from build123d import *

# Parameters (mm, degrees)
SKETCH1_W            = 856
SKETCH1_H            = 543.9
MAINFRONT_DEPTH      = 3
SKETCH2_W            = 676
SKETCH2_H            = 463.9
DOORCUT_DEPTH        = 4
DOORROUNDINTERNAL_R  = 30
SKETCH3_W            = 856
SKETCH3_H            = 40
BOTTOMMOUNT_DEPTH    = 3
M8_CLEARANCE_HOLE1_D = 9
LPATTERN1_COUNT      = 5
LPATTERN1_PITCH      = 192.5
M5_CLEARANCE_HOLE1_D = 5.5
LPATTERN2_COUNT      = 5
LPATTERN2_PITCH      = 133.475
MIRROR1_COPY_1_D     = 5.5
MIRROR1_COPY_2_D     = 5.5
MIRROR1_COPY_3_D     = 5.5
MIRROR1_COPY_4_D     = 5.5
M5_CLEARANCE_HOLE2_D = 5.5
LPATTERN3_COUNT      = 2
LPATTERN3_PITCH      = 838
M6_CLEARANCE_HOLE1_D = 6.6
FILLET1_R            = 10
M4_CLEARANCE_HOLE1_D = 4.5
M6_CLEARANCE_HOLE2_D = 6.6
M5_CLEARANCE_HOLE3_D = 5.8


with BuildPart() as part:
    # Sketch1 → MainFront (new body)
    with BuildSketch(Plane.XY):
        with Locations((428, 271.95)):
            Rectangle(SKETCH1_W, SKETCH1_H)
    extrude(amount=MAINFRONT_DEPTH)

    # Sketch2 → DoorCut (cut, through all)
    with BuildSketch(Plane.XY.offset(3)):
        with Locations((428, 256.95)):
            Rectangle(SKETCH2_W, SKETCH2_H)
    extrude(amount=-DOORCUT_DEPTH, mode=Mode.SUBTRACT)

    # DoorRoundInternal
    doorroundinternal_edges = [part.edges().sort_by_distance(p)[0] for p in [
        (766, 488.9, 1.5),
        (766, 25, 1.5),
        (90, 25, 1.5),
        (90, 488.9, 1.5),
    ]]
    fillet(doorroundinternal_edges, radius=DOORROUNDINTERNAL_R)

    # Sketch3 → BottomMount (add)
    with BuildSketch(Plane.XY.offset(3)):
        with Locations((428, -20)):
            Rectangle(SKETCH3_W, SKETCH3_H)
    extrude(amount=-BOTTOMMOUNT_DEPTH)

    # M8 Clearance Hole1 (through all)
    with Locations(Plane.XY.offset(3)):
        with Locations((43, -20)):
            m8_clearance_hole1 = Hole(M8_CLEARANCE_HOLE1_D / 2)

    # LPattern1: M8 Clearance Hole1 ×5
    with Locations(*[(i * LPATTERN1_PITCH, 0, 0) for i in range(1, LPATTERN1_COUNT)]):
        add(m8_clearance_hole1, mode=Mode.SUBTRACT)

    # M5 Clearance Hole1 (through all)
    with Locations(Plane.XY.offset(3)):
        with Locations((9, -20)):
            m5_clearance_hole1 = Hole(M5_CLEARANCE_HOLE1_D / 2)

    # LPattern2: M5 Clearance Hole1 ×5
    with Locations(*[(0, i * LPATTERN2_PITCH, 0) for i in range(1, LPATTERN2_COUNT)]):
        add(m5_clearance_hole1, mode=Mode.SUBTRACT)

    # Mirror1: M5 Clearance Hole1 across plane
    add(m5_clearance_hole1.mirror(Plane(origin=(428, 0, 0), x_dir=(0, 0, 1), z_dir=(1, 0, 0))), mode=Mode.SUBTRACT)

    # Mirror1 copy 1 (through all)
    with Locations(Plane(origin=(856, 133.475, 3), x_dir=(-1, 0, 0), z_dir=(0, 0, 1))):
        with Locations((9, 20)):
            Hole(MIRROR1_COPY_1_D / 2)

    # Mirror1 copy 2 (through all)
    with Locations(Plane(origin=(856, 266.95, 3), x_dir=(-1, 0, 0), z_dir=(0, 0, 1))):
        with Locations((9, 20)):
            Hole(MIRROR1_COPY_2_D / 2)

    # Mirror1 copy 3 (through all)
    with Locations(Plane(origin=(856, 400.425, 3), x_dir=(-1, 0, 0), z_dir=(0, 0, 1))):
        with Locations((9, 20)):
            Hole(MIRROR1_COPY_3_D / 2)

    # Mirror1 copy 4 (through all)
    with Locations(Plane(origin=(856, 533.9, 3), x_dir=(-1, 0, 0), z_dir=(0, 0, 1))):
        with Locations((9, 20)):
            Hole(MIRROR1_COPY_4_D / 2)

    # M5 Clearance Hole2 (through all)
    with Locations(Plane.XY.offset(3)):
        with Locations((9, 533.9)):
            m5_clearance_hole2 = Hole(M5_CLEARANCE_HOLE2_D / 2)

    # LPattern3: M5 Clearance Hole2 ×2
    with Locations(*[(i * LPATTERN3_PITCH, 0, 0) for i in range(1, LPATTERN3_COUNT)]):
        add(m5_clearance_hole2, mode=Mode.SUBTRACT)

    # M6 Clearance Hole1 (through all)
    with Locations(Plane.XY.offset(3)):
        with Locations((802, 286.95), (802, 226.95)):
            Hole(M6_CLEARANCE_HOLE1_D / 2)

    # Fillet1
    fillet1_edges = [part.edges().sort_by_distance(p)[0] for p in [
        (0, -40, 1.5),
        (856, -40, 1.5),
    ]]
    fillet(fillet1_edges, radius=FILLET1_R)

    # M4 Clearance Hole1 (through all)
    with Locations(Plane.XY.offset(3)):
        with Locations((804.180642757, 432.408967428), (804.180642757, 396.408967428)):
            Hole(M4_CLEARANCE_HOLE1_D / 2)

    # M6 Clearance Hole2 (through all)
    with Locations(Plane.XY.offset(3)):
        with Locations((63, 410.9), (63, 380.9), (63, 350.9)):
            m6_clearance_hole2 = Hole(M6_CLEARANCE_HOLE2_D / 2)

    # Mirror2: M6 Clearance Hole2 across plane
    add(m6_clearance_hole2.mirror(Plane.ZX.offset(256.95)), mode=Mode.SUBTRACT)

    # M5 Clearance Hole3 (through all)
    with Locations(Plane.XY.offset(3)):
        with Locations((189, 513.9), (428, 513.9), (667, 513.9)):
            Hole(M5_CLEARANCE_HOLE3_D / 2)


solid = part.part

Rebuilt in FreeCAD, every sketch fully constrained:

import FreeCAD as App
import Part
import Sketcher


def edges_at(feature, points):
    """Names of the edges that pass closest to the given points."""
    edges = feature.Shape.Edges
    near = lambda p: min(range(len(edges)), key=lambda i: edges[i].distToShape(Part.Vertex(*p))[0])
    return sorted({f"Edge{near(p) + 1}" for p in points})


def add_polygon(sketch, points):
    """Adds a closed chain of lines whose ends are joined by coincident constraints."""
    first, n = sketch.GeometryCount, len(points)
    for a, b in zip(points, points[1:] + points[:1]):
        sketch.addGeometry(Part.LineSegment(App.Vector(*a, 0), App.Vector(*b, 0)), False)
    for i in range(n):
        sketch.addConstraint(Sketcher.Constraint("Coincident", first + i, 2, first + (i + 1) % n, 1))

doc = App.newDocument("Part")
body = doc.addObject("PartDesign::Body", "Body")

# Sketch on XY plane
sketch1 = body.newObject("Sketcher::SketchObject", "Sketch")
sketch1.AttachmentSupport = (doc.getObject("XY_Plane"), [""])
sketch1.MapMode = "FlatFace"
add_polygon(sketch1, [(0, 544), (0, 0), (856, 0), (856, 544)])  # lines 0-3
sketch1.addConstraint([
    Sketcher.Constraint("Vertical", 0),
    Sketcher.Constraint("Horizontal", 1),
    Sketcher.Constraint("Vertical", 2),
    Sketcher.Constraint("Horizontal", 3),
    Sketcher.Constraint("Coincident", 0, 2, -1, 1),
    Sketcher.Constraint("DistanceX", 1, 1, 1, 2, 856.0),
    Sketcher.Constraint("DistanceY", 0, 2, 0, 1, 543.9),
])
pad1 = body.newObject("PartDesign::Pad", "Pad")
pad1.Profile = sketch1
pad1.Length = 3

# Sketch on XY plane
sketch2 = body.newObject("Sketcher::SketchObject", "Sketch001")
sketch2.AttachmentSupport = (doc.getObject("XY_Plane"), [""])
sketch2.MapMode = "FlatFace"
sketch2.AttachmentOffset = App.Placement(App.Vector(0, 0, 3), App.Rotation())
add_polygon(sketch2, [(90, 489), (90, 25), (766, 25), (766, 489)])  # lines 0-3
sketch2.addConstraint([
    Sketcher.Constraint("Vertical", 0),
    Sketcher.Constraint("Horizontal", 1),
    Sketcher.Constraint("Vertical", 2),
    Sketcher.Constraint("Horizontal", 3),
    Sketcher.Constraint("DistanceX", 1, 1, 1, 2, 676.0),
    Sketcher.Constraint("DistanceY", 0, 2, 0, 1, 463.9),
    Sketcher.Constraint("DistanceX", -1, 1, 0, 2, 90.0),
    Sketcher.Constraint("DistanceY", -1, 1, 0, 2, 25.0),
])
pocket1 = body.newObject("PartDesign::Pocket", "Pocket")
pocket1.Profile = sketch2
pocket1.Type = "ThroughAll"
doc.recompute()

fillet = body.newObject("PartDesign::Fillet", "Fillet")
fillet.Base = (pocket1, edges_at(pocket1, [
    (766, 488.9, 1.5),
    (766, 25, 1.5),
    (90, 25, 1.5),
    (90, 488.9, 1.5),
]))
fillet.Radius = 30

# Sketch on XY plane
sketch3 = body.newObject("Sketcher::SketchObject", "Sketch002")
sketch3.AttachmentSupport = (doc.getObject("XY_Plane"), [""])
sketch3.MapMode = "FlatFace"
sketch3.AttachmentOffset = App.Placement(App.Vector(0, 0, 3), App.Rotation())
add_polygon(sketch3, [(0, 0), (0, -40), (856, -40), (856, 0)])  # lines 0-3
sketch3.addConstraint([
    Sketcher.Constraint("Vertical", 0),
    Sketcher.Constraint("Horizontal", 1),
    Sketcher.Constraint("Vertical", 2),
    Sketcher.Constraint("Horizontal", 3),
    Sketcher.Constraint("Coincident", 3, 2, -1, 1),
    Sketcher.Constraint("DistanceX", 1, 1, 1, 2, 856.0),
    Sketcher.Constraint("DistanceY", 0, 2, 0, 1, 40.0),
])
pad2 = body.newObject("PartDesign::Pad", "Pad001")
pad2.Profile = sketch3
pad2.Length = 3
pad2.Reversed = True

# Sketch on XY plane
sketch4 = body.newObject("Sketcher::SketchObject", "Sketch003")
sketch4.AttachmentSupport = (doc.getObject("XY_Plane"), [""])
sketch4.MapMode = "FlatFace"
sketch4.AttachmentOffset = App.Placement(App.Vector(0, 0, 3), App.Rotation())
sketch4.addGeometry(Part.Circle(App.Vector(43, -20, 0), App.Vector(0, 0, 1), 4.5), False)
sketch4.addConstraint([
    Sketcher.Constraint("Diameter", 0, 9.0),
    Sketcher.Constraint("DistanceX", -1, 1, 0, 3, 43.0),
    Sketcher.Constraint("DistanceY", 0, 3, -1, 1, 20.0),
])
doc.recompute()
hole = body.newObject("PartDesign::Hole", "Hole")
hole.Profile = sketch4
hole.ThreadType = "None"
hole.Diameter = 9
hole.DepthType = "ThroughAll"
doc.recompute()

linearpattern = body.newObject("PartDesign::LinearPattern", "LinearPattern")
linearpattern.Originals = [hole]
linearpattern.Direction = (doc.getObject("X_Axis"), [""])
linearpattern.Mode = "offset"
linearpattern.Offset = 192.5
linearpattern.Occurrences = 5
body.Tip = linearpattern

# Sketch on XY plane
sketch5 = body.newObject("Sketcher::SketchObject", "Sketch004")
sketch5.AttachmentSupport = (doc.getObject("XY_Plane"), [""])
sketch5.MapMode = "FlatFace"
sketch5.AttachmentOffset = App.Placement(App.Vector(0, 0, 3), App.Rotation())
sketch5.addGeometry(Part.Circle(App.Vector(9, -20, 0), App.Vector(0, 0, 1), 2.8), False)
sketch5.addConstraint([
    Sketcher.Constraint("Diameter", 0, 5.5),
    Sketcher.Constraint("DistanceX", -1, 1, 0, 3, 9.0),
    Sketcher.Constraint("DistanceY", 0, 3, -1, 1, 20.0),
])
doc.recompute()
hole2 = body.newObject("PartDesign::Hole", "Hole001")
hole2.Profile = sketch5
hole2.ThreadType = "None"
hole2.Diameter = 5.5
hole2.DepthType = "ThroughAll"
doc.recompute()

linearpattern2 = body.newObject("PartDesign::LinearPattern", "LinearPattern001")
linearpattern2.Originals = [hole2]
linearpattern2.Direction = (doc.getObject("Y_Axis"), [""])
linearpattern2.Mode = "offset"
linearpattern2.Offset = 133.475
linearpattern2.Occurrences = 5
body.Tip = linearpattern2
doc.recompute()

datumplane = body.newObject("PartDesign::Plane", "DatumPlane")
datumplane.AttachmentSupport = (doc.getObject("YZ_Plane"), [""])
datumplane.MapMode = "FlatFace"
datumplane.AttachmentOffset = App.Placement(App.Vector(0, 0, 428), App.Rotation())
mirrored = body.newObject("PartDesign::Mirrored", "Mirrored")
mirrored.Originals = [hole2]
mirrored.MirrorPlane = (datumplane, [""])
body.Tip = mirrored

# Sketch on XY plane
sketch6 = body.newObject("Sketcher::SketchObject", "Sketch005")
sketch6.AttachmentSupport = (doc.getObject("XY_Plane"), [""])
sketch6.MapMode = "FlatFace"
sketch6.AttachmentOffset = App.Placement(App.Vector(0, 0, 3), App.Rotation())
sketch6.addGeometry(Part.Circle(App.Vector(847, 113.5, 0), App.Vector(0, 0, 1), 2.8), False)
sketch6.addConstraint([
    Sketcher.Constraint("Diameter", 0, 5.5),
    Sketcher.Constraint("DistanceX", -1, 1, 0, 3, 847.0),
    Sketcher.Constraint("DistanceY", -1, 1, 0, 3, 113.475),
])
doc.recompute()
hole3 = body.newObject("PartDesign::Hole", "Hole002")
hole3.Profile = sketch6
hole3.ThreadType = "None"
hole3.Diameter = 5.5
hole3.DepthType = "ThroughAll"

# Sketch on XY plane
sketch7 = body.newObject("Sketcher::SketchObject", "Sketch006")
sketch7.AttachmentSupport = (doc.getObject("XY_Plane"), [""])
sketch7.MapMode = "FlatFace"
sketch7.AttachmentOffset = App.Placement(App.Vector(0, 0, 3), App.Rotation())
sketch7.addGeometry(Part.Circle(App.Vector(847, 246.9, 0), App.Vector(0, 0, 1), 2.8), False)
sketch7.addConstraint([
    Sketcher.Constraint("Diameter", 0, 5.5),
    Sketcher.Constraint("DistanceX", -1, 1, 0, 3, 847.0),
    Sketcher.Constraint("DistanceY", -1, 1, 0, 3, 246.95),
])
doc.recompute()
hole4 = body.newObject("PartDesign::Hole", "Hole003")
hole4.Profile = sketch7
hole4.ThreadType = "None"
hole4.Diameter = 5.5
hole4.DepthType = "ThroughAll"

# Sketch on XY plane
sketch8 = body.newObject("Sketcher::SketchObject", "Sketch007")
sketch8.AttachmentSupport = (doc.getObject("XY_Plane"), [""])
sketch8.MapMode = "FlatFace"
sketch8.AttachmentOffset = App.Placement(App.Vector(0, 0, 3), App.Rotation())
sketch8.addGeometry(Part.Circle(App.Vector(847, 380.4, 0), App.Vector(0, 0, 1), 2.8), False)
sketch8.addConstraint([
    Sketcher.Constraint("Diameter", 0, 5.5),
    Sketcher.Constraint("DistanceX", -1, 1, 0, 3, 847.0),
    Sketcher.Constraint("DistanceY", -1, 1, 0, 3, 380.425),
])
doc.recompute()
hole5 = body.newObject("PartDesign::Hole", "Hole004")
hole5.Profile = sketch8
hole5.ThreadType = "None"
hole5.Diameter = 5.5
hole5.DepthType = "ThroughAll"

# Sketch on XY plane
sketch9 = body.newObject("Sketcher::SketchObject", "Sketch008")
sketch9.AttachmentSupport = (doc.getObject("XY_Plane"), [""])
sketch9.MapMode = "FlatFace"
sketch9.AttachmentOffset = App.Placement(App.Vector(0, 0, 3), App.Rotation())
sketch9.addGeometry(Part.Circle(App.Vector(847, 513.9, 0), App.Vector(0, 0, 1), 2.8), False)
sketch9.addConstraint([
    Sketcher.Constraint("Diameter", 0, 5.5),
    Sketcher.Constraint("DistanceX", -1, 1, 0, 3, 847.0),
    Sketcher.Constraint("DistanceY", -1, 1, 0, 3, 513.9),
])
doc.recompute()
hole6 = body.newObject("PartDesign::Hole", "Hole005")
hole6.Profile = sketch9
hole6.ThreadType = "None"
hole6.Diameter = 5.5
hole6.DepthType = "ThroughAll"

# Sketch on XY plane
sketch10 = body.newObject("Sketcher::SketchObject", "Sketch009")
sketch10.AttachmentSupport = (doc.getObject("XY_Plane"), [""])
sketch10.MapMode = "FlatFace"
sketch10.AttachmentOffset = App.Placement(App.Vector(0, 0, 3), App.Rotation())
sketch10.addGeometry(Part.Circle(App.Vector(9, 533.9, 0), App.Vector(0, 0, 1), 2.8), False)
sketch10.addConstraint([
    Sketcher.Constraint("Diameter", 0, 5.5),
    Sketcher.Constraint("DistanceX", -1, 1, 0, 3, 9.0),
    Sketcher.Constraint("DistanceY", -1, 1, 0, 3, 533.9),
])
doc.recompute()
hole7 = body.newObject("PartDesign::Hole", "Hole006")
hole7.Profile = sketch10
hole7.ThreadType = "None"
hole7.Diameter = 5.5
hole7.DepthType = "ThroughAll"
doc.recompute()

linearpattern3 = body.newObject("PartDesign::LinearPattern", "LinearPattern002")
linearpattern3.Originals = [hole7]
linearpattern3.Direction = (doc.getObject("X_Axis"), [""])
linearpattern3.Mode = "offset"
linearpattern3.Offset = 838
linearpattern3.Occurrences = 2
body.Tip = linearpattern3

# Sketch on XY plane
sketch11 = body.newObject("Sketcher::SketchObject", "Sketch010")
sketch11.AttachmentSupport = (doc.getObject("XY_Plane"), [""])
sketch11.MapMode = "FlatFace"
sketch11.AttachmentOffset = App.Placement(App.Vector(0, 0, 3), App.Rotation())
sketch11.addGeometry([
    Part.Circle(App.Vector(802, 286.9, 0), App.Vector(0, 0, 1), 3.3),
    Part.Circle(App.Vector(802, 226.9, 0), App.Vector(0, 0, 1), 3.3),
], False)
sketch11.addConstraint([
    Sketcher.Constraint("Equal", 0, 1),
    Sketcher.Constraint("Vertical", 0, 3, 1, 3),
    Sketcher.Constraint("Diameter", 0, 6.6),
    Sketcher.Constraint("DistanceX", -1, 1, 0, 3, 802.0),
    Sketcher.Constraint("DistanceY", 1, 3, 0, 3, 60.0),
    Sketcher.Constraint("DistanceY", -1, 1, 0, 3, 286.95),
])
doc.recompute()
hole8 = body.newObject("PartDesign::Hole", "Hole007")
hole8.Profile = sketch11
hole8.ThreadType = "None"
hole8.Diameter = 6.6
hole8.DepthType = "ThroughAll"
doc.recompute()

fillet2 = body.newObject("PartDesign::Fillet", "Fillet001")
fillet2.Base = (hole8, edges_at(hole8, [(0, -40, 1.5), (856, -40, 1.5)]))
fillet2.Radius = 10

# Sketch on XY plane
sketch12 = body.newObject("Sketcher::SketchObject", "Sketch011")
sketch12.AttachmentSupport = (doc.getObject("XY_Plane"), [""])
sketch12.MapMode = "FlatFace"
sketch12.AttachmentOffset = App.Placement(App.Vector(0, 0, 3), App.Rotation())
sketch12.addGeometry([
    Part.Circle(App.Vector(804.2, 432.4, 0), App.Vector(0, 0, 1), 2.2),
    Part.Circle(App.Vector(804.2, 396.4, 0), App.Vector(0, 0, 1), 2.2),
], False)
sketch12.addConstraint([
    Sketcher.Constraint("Equal", 0, 1),
    Sketcher.Constraint("Vertical", 0, 3, 1, 3),
    Sketcher.Constraint("Diameter", 0, 4.5),
    Sketcher.Constraint("DistanceY", 1, 3, 0, 3, 36.0),
    Sketcher.Constraint("DistanceX", -1, 1, 0, 3, 804.180643),
    Sketcher.Constraint("DistanceY", -1, 1, 0, 3, 432.408967),
])
doc.recompute()
hole9 = body.newObject("PartDesign::Hole", "Hole008")
hole9.Profile = sketch12
hole9.ThreadType = "None"
hole9.Diameter = 4.5
hole9.DepthType = "ThroughAll"

# Sketch on XY plane
sketch13 = body.newObject("Sketcher::SketchObject", "Sketch012")
sketch13.AttachmentSupport = (doc.getObject("XY_Plane"), [""])
sketch13.MapMode = "FlatFace"
sketch13.AttachmentOffset = App.Placement(App.Vector(0, 0, 3), App.Rotation())
sketch13.addGeometry([
    Part.Circle(App.Vector(63, 410.9, 0), App.Vector(0, 0, 1), 3.3),
    Part.Circle(App.Vector(63, 380.9, 0), App.Vector(0, 0, 1), 3.3),
    Part.Circle(App.Vector(63, 350.9, 0), App.Vector(0, 0, 1), 3.3),
], False)
sketch13.addConstraint([
    Sketcher.Constraint("Equal", 0, 1),
    Sketcher.Constraint("Equal", 1, 2),
    Sketcher.Constraint("Vertical", 0, 3, 1, 3),
    Sketcher.Constraint("Vertical", 1, 3, 2, 3),
    Sketcher.Constraint("Diameter", 0, 6.6),
    Sketcher.Constraint("DistanceX", -1, 1, 0, 3, 63.0),
    Sketcher.Constraint("DistanceY", 1, 3, 0, 3, 30.0),
    Sketcher.Constraint("DistanceY", 2, 3, 1, 3, 30.0),
    Sketcher.Constraint("DistanceY", -1, 1, 0, 3, 410.9),
])
doc.recompute()
hole10 = body.newObject("PartDesign::Hole", "Hole009")
hole10.Profile = sketch13
hole10.ThreadType = "None"
hole10.Diameter = 6.6
hole10.DepthType = "ThroughAll"
doc.recompute()

datumplane2 = body.newObject("PartDesign::Plane", "DatumPlane001")
datumplane2.AttachmentSupport = (doc.getObject("XZ_Plane"), [""])
datumplane2.MapMode = "FlatFace"
datumplane2.AttachmentOffset = App.Placement(App.Vector(0, 0, -256.95), App.Rotation())
mirrored2 = body.newObject("PartDesign::Mirrored", "Mirrored001")
mirrored2.Originals = [hole10]
mirrored2.MirrorPlane = (datumplane2, [""])
body.Tip = mirrored2

# Sketch on XY plane
sketch14 = body.newObject("Sketcher::SketchObject", "Sketch013")
sketch14.AttachmentSupport = (doc.getObject("XY_Plane"), [""])
sketch14.MapMode = "FlatFace"
sketch14.AttachmentOffset = App.Placement(App.Vector(0, 0, 3), App.Rotation())
sketch14.addGeometry([
    Part.Circle(App.Vector(189, 513.9, 0), App.Vector(0, 0, 1), 2.9),
    Part.Circle(App.Vector(428, 513.9, 0), App.Vector(0, 0, 1), 2.9),
    Part.Circle(App.Vector(667, 513.9, 0), App.Vector(0, 0, 1), 2.9),
], False)
sketch14.addConstraint([
    Sketcher.Constraint("Equal", 0, 1),
    Sketcher.Constraint("Equal", 1, 2),
    Sketcher.Constraint("Horizontal", 0, 3, 1, 3),
    Sketcher.Constraint("Horizontal", 1, 3, 2, 3),
    Sketcher.Constraint("Diameter", 0, 5.8),
    Sketcher.Constraint("DistanceX", -1, 1, 0, 3, 189.0),
    Sketcher.Constraint("DistanceX", -1, 1, 1, 3, 428.0),
    Sketcher.Constraint("DistanceX", -1, 1, 2, 3, 667.0),
    Sketcher.Constraint("DistanceY", -1, 1, 0, 3, 513.9),
])
doc.recompute()
hole11 = body.newObject("PartDesign::Hole", "Hole010")
hole11.Profile = sketch14
hole11.ThreadType = "None"
hole11.Diameter = 5.8
hole11.DepthType = "ThroughAll"

doc.recompute()
